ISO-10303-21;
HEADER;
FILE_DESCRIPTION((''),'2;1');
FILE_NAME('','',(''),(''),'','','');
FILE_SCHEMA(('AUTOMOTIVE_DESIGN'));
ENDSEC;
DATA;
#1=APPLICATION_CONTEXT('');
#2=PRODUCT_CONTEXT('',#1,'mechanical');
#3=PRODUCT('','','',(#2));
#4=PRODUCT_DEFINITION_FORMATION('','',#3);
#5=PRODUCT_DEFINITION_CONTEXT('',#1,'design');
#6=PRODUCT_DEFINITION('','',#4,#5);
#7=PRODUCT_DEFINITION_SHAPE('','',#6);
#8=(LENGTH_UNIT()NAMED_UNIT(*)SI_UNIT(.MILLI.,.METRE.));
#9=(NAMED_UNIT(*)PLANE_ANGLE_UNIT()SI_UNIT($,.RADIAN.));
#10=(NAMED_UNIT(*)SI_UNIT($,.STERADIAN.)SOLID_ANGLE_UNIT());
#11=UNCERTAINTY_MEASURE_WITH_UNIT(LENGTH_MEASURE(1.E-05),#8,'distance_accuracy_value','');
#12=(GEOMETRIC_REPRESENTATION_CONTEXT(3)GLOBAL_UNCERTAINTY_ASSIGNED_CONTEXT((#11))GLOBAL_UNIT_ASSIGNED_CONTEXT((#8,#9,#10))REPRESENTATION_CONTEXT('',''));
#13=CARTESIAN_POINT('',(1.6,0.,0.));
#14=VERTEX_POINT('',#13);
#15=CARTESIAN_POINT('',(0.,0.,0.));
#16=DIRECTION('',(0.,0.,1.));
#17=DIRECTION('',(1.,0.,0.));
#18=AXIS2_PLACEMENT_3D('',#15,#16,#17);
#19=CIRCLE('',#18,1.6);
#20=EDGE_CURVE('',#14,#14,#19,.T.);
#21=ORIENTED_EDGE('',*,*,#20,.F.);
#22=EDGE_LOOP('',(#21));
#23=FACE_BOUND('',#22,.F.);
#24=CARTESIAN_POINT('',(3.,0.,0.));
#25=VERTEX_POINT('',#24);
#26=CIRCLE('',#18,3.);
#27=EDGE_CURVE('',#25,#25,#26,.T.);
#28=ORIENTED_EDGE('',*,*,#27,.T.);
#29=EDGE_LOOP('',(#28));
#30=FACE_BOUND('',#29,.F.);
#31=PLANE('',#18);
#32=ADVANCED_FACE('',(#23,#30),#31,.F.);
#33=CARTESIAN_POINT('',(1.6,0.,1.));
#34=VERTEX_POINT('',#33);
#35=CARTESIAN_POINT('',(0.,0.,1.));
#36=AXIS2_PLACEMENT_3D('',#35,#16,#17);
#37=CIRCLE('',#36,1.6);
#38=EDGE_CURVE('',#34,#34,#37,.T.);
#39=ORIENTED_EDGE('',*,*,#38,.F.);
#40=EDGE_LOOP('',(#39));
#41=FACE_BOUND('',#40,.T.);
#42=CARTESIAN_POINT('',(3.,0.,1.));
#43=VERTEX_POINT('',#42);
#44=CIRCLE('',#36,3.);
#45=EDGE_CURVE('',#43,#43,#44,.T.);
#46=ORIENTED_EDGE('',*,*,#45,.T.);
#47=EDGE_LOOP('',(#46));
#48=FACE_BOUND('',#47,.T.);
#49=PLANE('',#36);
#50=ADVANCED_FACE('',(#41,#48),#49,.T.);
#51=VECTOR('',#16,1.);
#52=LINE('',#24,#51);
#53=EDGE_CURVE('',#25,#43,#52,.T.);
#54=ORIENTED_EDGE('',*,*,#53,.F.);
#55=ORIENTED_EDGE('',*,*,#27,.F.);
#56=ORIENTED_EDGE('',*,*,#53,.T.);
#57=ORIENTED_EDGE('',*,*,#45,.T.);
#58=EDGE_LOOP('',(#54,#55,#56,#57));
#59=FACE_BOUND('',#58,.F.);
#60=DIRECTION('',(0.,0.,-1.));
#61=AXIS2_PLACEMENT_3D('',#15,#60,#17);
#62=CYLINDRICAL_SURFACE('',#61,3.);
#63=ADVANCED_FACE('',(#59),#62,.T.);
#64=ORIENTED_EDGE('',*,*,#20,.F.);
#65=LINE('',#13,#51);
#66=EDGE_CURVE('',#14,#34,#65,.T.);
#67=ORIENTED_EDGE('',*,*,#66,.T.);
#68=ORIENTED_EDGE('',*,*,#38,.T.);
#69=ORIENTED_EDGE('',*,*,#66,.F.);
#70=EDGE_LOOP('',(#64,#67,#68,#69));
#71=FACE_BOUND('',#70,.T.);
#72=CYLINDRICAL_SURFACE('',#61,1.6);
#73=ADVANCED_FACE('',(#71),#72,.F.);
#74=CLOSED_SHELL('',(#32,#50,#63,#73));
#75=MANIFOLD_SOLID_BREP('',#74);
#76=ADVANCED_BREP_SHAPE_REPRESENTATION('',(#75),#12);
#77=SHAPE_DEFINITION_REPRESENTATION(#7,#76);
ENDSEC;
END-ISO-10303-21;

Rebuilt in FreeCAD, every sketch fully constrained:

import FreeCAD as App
import Part
import Sketcher
from FreeCAD import Vector

doc = App.newDocument("Part")
params = doc.addObject("Spreadsheet::Sheet", "Params")
for row, (alias, value) in enumerate([
    ("sketch1_diameter", "6 mm"),
    ("sketch1_diameter2", "3.2 mm"),
    ("pad1_length", "1 mm"),
], start=1):
    params.set(f"A{row}", alias)
    params.set(f"B{row}", "=" + value)
    params.setAlias(f"B{row}", alias)

body = doc.addObject("PartDesign::Body", "Body")

# Sketch on XY plane
sketch1 = doc.addObject("Sketcher::SketchObject", "Sketch")
body.addObject(sketch1)
sketch1.AttachmentSupport = (doc.XY_Plane, [""])
sketch1.MapMode = "FlatFace"
sketch1.addGeometry(Part.Circle(Vector(0, 0, 0), Vector(0, 0, 1), 3), False)
sketch1.addGeometry(Part.Circle(Vector(0, 0, 0), Vector(0, 0, 1), 1.6), False)
sketch1.addConstraint(Sketcher.Constraint("Coincident", 0, 3, -1, 1))
sketch1.addConstraint(Sketcher.Constraint("Coincident", 1, 3, -1, 1))
sketch1.addConstraint(Sketcher.Constraint("Diameter", 0, 6.0))
sketch1.addConstraint(Sketcher.Constraint("Diameter", 1, 3.2))
sketch1.setExpression("Constraints[2]", "Params.sketch1_diameter")
sketch1.setExpression("Constraints[3]", "Params.sketch1_diameter2")
pad1 = doc.addObject("PartDesign::Pad", "Pad")
body.addObject(pad1)
pad1.Profile = sketch1
pad1.setExpression("Length", "Params.pad1_length")

doc.recompute()
